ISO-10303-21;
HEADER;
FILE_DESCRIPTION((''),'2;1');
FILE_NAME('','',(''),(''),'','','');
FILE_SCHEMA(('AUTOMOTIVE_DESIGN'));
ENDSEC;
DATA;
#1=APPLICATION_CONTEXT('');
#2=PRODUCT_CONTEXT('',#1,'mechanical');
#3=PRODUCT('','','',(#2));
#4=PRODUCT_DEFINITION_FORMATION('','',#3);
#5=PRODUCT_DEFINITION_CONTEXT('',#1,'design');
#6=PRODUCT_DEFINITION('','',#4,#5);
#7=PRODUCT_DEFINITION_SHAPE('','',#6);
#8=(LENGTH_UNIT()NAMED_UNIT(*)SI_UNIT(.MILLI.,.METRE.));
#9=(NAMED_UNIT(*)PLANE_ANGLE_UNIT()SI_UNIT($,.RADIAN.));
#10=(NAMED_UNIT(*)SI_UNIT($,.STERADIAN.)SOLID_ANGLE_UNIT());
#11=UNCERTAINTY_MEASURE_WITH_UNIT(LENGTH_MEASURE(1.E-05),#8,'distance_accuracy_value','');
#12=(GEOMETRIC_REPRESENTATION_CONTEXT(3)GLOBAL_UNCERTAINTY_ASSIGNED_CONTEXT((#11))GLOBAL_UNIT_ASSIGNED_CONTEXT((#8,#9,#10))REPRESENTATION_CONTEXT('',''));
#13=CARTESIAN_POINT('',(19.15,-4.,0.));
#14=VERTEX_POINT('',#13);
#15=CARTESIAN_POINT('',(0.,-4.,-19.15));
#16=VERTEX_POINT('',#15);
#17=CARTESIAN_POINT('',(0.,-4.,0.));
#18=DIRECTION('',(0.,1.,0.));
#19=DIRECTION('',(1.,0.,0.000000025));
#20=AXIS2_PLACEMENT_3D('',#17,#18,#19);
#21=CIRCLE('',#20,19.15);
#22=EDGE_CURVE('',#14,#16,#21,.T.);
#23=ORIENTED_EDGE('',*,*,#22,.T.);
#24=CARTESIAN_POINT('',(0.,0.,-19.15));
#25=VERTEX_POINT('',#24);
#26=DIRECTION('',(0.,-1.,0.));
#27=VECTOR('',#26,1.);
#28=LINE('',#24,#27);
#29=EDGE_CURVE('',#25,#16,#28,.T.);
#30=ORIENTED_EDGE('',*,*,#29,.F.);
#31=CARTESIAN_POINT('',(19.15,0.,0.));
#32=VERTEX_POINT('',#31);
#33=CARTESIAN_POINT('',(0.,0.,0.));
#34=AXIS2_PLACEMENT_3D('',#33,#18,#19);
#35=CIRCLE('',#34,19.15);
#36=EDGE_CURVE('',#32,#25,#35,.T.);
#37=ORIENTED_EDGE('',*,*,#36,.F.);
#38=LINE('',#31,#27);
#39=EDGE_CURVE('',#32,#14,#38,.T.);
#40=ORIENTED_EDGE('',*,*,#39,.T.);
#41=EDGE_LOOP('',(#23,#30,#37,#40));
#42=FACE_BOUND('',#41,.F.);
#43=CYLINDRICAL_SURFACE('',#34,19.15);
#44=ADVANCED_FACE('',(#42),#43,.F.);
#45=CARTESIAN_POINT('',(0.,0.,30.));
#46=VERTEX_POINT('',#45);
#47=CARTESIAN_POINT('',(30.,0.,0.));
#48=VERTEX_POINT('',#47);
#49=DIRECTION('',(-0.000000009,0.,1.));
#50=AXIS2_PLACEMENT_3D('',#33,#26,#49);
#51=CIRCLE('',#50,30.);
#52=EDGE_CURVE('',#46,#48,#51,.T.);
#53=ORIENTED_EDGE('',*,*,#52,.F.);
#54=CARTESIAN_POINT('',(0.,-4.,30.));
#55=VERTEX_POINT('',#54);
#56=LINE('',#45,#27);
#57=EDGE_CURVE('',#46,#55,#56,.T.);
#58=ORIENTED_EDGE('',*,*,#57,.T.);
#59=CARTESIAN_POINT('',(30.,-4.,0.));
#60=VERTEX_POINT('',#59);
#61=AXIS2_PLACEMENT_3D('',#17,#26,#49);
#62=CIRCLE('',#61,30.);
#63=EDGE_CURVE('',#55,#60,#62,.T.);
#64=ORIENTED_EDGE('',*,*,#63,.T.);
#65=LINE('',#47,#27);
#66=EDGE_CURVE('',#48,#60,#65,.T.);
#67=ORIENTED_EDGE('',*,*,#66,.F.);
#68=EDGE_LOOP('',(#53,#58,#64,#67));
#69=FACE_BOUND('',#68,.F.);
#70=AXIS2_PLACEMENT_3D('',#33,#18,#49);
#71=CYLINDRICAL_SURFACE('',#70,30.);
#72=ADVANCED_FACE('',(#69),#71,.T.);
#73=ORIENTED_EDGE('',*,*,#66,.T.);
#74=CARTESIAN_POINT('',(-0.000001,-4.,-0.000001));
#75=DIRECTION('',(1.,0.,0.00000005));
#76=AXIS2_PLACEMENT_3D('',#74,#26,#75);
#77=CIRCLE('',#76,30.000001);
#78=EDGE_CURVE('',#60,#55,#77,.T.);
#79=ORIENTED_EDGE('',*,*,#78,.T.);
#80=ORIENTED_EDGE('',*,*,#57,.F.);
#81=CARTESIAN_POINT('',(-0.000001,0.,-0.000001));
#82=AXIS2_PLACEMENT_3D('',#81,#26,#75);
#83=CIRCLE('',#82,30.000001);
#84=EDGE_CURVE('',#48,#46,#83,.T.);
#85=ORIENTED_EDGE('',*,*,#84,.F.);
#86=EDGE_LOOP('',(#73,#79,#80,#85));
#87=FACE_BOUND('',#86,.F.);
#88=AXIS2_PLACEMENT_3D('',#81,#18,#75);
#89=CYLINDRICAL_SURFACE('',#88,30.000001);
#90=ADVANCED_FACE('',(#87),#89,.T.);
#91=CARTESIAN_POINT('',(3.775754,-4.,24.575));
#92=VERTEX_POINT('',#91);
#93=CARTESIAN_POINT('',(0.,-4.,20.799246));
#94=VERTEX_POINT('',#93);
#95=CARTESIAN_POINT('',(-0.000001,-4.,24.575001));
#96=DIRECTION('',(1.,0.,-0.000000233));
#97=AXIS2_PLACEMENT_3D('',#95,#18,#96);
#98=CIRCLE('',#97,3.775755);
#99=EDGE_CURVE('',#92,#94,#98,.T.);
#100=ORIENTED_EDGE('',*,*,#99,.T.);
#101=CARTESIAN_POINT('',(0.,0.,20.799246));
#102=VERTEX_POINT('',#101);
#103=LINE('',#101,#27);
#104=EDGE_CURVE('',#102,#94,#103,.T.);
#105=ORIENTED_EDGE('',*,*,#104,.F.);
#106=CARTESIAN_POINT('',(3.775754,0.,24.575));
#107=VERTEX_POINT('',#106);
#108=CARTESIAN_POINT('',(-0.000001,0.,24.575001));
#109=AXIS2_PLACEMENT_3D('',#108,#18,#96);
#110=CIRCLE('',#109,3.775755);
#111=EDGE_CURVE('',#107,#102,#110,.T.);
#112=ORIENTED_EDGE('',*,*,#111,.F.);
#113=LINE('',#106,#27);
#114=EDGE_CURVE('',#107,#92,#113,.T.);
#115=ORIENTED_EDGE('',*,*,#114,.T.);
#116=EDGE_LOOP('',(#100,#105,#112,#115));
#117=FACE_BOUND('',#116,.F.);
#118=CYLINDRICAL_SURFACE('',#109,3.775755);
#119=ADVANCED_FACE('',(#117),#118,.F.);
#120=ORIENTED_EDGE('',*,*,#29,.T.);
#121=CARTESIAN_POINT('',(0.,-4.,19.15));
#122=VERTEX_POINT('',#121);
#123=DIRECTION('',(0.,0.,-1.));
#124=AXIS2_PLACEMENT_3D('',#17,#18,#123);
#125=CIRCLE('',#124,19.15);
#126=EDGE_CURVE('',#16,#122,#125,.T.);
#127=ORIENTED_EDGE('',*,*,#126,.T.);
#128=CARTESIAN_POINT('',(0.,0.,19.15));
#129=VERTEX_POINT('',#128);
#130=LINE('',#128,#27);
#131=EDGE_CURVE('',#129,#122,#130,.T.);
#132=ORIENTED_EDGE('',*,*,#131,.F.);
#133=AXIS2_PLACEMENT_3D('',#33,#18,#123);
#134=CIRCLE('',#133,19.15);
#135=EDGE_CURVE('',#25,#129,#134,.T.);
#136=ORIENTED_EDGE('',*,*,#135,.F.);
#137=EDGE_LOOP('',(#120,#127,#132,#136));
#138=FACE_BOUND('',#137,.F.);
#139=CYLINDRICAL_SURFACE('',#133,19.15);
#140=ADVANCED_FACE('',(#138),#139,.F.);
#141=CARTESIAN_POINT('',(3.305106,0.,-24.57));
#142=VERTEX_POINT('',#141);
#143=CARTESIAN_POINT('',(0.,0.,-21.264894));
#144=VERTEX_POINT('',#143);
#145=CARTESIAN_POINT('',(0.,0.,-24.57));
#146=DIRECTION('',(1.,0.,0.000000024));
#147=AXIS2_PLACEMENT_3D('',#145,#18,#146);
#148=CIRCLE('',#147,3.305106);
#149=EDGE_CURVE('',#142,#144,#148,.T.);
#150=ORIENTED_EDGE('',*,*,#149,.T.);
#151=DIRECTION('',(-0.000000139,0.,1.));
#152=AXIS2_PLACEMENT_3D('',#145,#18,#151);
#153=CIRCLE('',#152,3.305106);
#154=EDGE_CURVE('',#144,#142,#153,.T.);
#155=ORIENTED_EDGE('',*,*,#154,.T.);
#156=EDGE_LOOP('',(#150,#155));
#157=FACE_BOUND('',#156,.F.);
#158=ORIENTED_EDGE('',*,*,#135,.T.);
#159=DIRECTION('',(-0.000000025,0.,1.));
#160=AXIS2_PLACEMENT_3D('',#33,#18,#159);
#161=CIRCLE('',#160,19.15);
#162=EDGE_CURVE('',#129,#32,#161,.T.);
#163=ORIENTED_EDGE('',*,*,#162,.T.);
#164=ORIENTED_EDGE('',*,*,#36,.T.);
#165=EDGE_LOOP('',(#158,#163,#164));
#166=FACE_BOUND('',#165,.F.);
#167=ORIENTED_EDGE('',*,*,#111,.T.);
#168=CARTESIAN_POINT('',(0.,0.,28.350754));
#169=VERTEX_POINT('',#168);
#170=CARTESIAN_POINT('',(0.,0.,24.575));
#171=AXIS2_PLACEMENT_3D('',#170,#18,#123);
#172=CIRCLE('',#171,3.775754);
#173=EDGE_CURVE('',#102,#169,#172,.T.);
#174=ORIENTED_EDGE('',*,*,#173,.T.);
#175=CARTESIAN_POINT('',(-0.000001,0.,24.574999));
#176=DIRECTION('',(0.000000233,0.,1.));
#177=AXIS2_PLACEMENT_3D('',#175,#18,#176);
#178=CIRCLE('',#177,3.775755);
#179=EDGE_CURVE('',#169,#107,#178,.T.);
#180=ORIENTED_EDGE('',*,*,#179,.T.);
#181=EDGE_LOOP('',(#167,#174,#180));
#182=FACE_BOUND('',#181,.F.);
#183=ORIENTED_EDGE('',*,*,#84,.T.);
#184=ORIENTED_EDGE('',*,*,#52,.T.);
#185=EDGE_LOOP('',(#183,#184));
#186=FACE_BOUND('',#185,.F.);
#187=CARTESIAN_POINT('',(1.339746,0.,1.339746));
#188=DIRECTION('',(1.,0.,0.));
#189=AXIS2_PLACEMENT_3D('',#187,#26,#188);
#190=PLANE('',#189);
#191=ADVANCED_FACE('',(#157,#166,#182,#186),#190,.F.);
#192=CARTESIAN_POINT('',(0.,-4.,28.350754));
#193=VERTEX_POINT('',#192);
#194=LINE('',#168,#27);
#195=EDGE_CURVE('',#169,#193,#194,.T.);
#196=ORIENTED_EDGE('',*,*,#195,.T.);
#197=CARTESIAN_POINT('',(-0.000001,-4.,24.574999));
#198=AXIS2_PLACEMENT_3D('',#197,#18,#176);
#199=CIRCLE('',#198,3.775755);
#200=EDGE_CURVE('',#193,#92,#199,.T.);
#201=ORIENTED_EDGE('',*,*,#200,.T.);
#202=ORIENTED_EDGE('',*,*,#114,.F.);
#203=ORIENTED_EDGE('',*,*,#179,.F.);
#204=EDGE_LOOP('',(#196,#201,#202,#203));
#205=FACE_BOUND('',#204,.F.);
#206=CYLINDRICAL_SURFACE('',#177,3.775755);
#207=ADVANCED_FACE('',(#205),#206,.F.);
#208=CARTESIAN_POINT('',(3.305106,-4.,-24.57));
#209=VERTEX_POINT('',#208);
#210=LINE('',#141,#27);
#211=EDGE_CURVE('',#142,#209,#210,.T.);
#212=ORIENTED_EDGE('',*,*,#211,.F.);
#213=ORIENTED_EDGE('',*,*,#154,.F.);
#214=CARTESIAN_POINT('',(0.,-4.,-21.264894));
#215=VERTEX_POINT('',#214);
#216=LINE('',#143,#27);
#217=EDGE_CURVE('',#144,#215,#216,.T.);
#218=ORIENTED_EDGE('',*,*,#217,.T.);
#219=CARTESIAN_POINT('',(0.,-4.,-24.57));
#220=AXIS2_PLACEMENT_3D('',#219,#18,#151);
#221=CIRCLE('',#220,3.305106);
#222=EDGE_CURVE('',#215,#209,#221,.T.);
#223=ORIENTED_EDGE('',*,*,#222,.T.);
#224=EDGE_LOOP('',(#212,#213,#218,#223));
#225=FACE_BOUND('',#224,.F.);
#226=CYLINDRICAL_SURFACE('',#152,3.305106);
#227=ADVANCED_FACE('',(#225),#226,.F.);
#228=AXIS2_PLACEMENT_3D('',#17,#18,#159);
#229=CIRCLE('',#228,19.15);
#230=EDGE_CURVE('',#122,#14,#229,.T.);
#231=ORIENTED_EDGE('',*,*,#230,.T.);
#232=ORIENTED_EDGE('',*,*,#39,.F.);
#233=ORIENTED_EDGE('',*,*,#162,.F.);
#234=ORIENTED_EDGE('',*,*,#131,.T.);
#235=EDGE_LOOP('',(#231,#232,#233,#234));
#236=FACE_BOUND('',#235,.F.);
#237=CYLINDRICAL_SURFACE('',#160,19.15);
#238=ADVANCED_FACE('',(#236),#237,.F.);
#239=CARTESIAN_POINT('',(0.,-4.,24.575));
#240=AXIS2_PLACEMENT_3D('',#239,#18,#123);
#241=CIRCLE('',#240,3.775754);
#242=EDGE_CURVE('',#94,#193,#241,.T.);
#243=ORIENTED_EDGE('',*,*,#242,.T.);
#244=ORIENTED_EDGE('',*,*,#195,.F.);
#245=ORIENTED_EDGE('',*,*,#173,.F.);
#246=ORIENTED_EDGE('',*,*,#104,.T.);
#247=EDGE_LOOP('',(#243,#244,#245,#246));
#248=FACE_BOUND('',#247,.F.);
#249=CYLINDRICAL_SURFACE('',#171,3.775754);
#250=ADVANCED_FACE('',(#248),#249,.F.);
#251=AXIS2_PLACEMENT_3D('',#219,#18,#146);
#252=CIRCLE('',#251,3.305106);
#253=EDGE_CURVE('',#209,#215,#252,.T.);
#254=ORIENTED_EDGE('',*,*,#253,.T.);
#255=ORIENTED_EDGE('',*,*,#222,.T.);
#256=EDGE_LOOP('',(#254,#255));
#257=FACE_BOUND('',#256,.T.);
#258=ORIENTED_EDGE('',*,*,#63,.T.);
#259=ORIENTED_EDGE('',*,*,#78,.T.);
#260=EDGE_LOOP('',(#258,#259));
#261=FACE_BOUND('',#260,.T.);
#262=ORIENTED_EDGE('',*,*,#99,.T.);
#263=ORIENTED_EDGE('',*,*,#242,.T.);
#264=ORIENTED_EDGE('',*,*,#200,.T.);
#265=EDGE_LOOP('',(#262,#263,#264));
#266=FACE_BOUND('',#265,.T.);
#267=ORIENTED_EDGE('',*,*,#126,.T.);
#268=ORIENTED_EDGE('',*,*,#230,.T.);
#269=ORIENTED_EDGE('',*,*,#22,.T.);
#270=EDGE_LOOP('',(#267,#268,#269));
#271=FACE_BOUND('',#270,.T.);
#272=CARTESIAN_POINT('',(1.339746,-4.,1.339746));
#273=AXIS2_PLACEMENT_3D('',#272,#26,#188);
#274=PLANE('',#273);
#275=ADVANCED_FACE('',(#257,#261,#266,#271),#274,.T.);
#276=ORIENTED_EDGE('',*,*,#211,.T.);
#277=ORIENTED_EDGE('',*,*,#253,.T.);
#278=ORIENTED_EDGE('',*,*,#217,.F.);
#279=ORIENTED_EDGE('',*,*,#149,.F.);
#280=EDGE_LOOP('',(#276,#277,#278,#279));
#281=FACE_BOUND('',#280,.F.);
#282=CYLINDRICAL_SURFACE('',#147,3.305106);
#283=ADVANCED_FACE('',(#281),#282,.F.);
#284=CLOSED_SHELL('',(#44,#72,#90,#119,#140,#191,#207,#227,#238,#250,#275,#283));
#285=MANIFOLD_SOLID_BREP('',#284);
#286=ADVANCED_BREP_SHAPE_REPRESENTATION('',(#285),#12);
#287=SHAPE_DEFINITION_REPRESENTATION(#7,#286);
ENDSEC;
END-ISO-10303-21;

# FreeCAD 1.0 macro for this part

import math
import FreeCAD as App
import Part
import Sketcher
from FreeCAD import Vector

doc = App.newDocument("Part")
params = doc.addObject("Spreadsheet::Sheet", "Params")
for row, (alias, value) in enumerate([
    ("sketch1_radius", "30 mm"),
    ("sketch1_radius2", "19.15 mm"),
    ("pad1_length", "4 mm"),
], start=1):
    params.set(f"A{row}", alias)
    params.set(f"B{row}", "=" + value)
    params.setAlias(f"B{row}", alias)

body = doc.addObject("PartDesign::Body", "Body")

sketch1 = body.newObject("Sketcher::SketchObject", "Sketch")
sketch1.AttachmentSupport = (doc.getObject("XZ_Plane"), [""])
sketch1.MapMode = "FlatFace"
sketch1.addGeometry(Part.ArcOfCircle(Part.Circle(Vector(0, 0, 0), Vector(0, 0, 1), 30), math.radians(90), math.radians(360)), False)
sketch1.addGeometry(Part.ArcOfCircle(Part.Circle(Vector(-0.000001, -0.000001, 0), Vector(0, 0, 1), 30.000001), math.radians(0.000003), math.radians(89.999997)), False)
sketch1.addGeometry(Part.ArcOfCircle(Part.Circle(Vector(0, -24.57, 0), Vector(0, 0, 1), 3.305106), math.radians(-0.000008), math.radians(90.000008)), False)
sketch1.addGeometry(Part.ArcOfCircle(Part.Circle(Vector(0, -24.57, 0), Vector(0, 0, 1), 3.305106), math.radians(89.999999), math.radians(360.000001)), False)
sketch1.addGeometry(Part.ArcOfCircle(Part.Circle(Vector(0, 0, 0), Vector(0, 0, 1), 19.15), math.radians(-90.000001), math.radians(0.000001)), False)
sketch1.addGeometry(Part.ArcOfCircle(Part.Circle(Vector(0, 0, 0), Vector(0, 0, 1), 19.15), math.radians(90), math.radians(270)), False)
sketch1.addGeometry(Part.ArcOfCircle(Part.Circle(Vector(0, 0, 0), Vector(0, 0, 1), 19.15), math.radians(-0.000001), math.radians(90.000001)), False)
sketch1.addGeometry(Part.ArcOfCircle(Part.Circle(Vector(-0.000001, 24.575001, 0), Vector(0, 0, 1), 3.775755), math.radians(-89.999987), math.radians(-0.000013)), False)
sketch1.addGeometry(Part.ArcOfCircle(Part.Circle(Vector(0, 24.575, 0), Vector(0, 0, 1), 3.775754), math.radians(90), math.radians(270)), False)
sketch1.addGeometry(Part.ArcOfCircle(Part.Circle(Vector(-0.000001, 24.574999, 0), Vector(0, 0, 1), 3.775755), math.radians(0.000013), math.radians(89.999987)), False)
sketch1.addConstraint(Sketcher.Constraint("Tangent", 0, 1, 1, 2))
sketch1.addConstraint(Sketcher.Constraint("Coincident", 1, 1, 0, 2))
sketch1.addConstraint(Sketcher.Constraint("Tangent", 2, 1, 3, 2))
sketch1.addConstraint(Sketcher.Constraint("Coincident", 3, 1, 2, 2))
sketch1.addConstraint(Sketcher.Constraint("Tangent", 4, 1, 5, 2))
sketch1.addConstraint(Sketcher.Constraint("Tangent", 5, 1, 6, 2))
sketch1.addConstraint(Sketcher.Constraint("Tangent", 6, 1, 4, 2))
sketch1.addConstraint(Sketcher.Constraint("Tangent", 7, 1, 8, 2))
sketch1.addConstraint(Sketcher.Constraint("Tangent", 8, 1, 9, 2))
sketch1.addConstraint(Sketcher.Constraint("Tangent", 9, 1, 7, 2))
sketch1.addConstraint(Sketcher.Constraint("Coincident", 0, 3, -1, 1))
sketch1.addConstraint(Sketcher.Constraint("Coincident", 4, 3, -1, 1))
sketch1.addConstraint(Sketcher.Constraint("PointOnObject", 2, 3, -2))
sketch1.addConstraint(Sketcher.Constraint("PointOnObject", 7, 3, -2))
sketch1.addConstraint(Sketcher.Constraint("PointOnObject", 0, 1, -2))
sketch1.addConstraint(Sketcher.Constraint("PointOnObject", 1, 1, -1))
sketch1.addConstraint(Sketcher.Constraint("PointOnObject", 3, 1, -2))
sketch1.addConstraint(Sketcher.Constraint("PointOnObject", 4, 1, -2))
sketch1.addConstraint(Sketcher.Constraint("PointOnObject", 5, 1, -2))
sketch1.addConstraint(Sketcher.Constraint("PointOnObject", 6, 1, -1))
sketch1.addConstraint(Sketcher.Constraint("PointOnObject", 7, 1, -2))
sketch1.addConstraint(Sketcher.Constraint("PointOnObject", 8, 1, -2))
sketch1.addConstraint(Sketcher.Constraint("Horizontal", 3, 3, 2, 1))
sketch1.addConstraint(Sketcher.Constraint("Horizontal", 8, 3, 9, 1))
sketch1.addConstraint(Sketcher.Constraint("Radius", 0, 30.0))
sketch1.addConstraint(Sketcher.Constraint("Radius", 4, 19.15))
sketch1.addConstraint(Sketcher.Constraint("DistanceY", 2, 3, -1, 1, 24.57))
sketch1.addConstraint(Sketcher.Constraint("DistanceY", -1, 1, 7, 3, 24.575001))
sketch1.addConstraint(Sketcher.Constraint("Radius", 2, 3.305106))
sketch1.addConstraint(Sketcher.Constraint("Radius", 7, 3.775755))
sketch1.setExpression("Constraints[24]", "Params.sketch1_radius")
sketch1.setExpression("Constraints[25]", "Params.sketch1_radius2")
pad1 = body.newObject("PartDesign::Pad", "Pad")
pad1.Profile = sketch1
pad1.setExpression("Length", "Params.pad1_length")

doc.recompute()
